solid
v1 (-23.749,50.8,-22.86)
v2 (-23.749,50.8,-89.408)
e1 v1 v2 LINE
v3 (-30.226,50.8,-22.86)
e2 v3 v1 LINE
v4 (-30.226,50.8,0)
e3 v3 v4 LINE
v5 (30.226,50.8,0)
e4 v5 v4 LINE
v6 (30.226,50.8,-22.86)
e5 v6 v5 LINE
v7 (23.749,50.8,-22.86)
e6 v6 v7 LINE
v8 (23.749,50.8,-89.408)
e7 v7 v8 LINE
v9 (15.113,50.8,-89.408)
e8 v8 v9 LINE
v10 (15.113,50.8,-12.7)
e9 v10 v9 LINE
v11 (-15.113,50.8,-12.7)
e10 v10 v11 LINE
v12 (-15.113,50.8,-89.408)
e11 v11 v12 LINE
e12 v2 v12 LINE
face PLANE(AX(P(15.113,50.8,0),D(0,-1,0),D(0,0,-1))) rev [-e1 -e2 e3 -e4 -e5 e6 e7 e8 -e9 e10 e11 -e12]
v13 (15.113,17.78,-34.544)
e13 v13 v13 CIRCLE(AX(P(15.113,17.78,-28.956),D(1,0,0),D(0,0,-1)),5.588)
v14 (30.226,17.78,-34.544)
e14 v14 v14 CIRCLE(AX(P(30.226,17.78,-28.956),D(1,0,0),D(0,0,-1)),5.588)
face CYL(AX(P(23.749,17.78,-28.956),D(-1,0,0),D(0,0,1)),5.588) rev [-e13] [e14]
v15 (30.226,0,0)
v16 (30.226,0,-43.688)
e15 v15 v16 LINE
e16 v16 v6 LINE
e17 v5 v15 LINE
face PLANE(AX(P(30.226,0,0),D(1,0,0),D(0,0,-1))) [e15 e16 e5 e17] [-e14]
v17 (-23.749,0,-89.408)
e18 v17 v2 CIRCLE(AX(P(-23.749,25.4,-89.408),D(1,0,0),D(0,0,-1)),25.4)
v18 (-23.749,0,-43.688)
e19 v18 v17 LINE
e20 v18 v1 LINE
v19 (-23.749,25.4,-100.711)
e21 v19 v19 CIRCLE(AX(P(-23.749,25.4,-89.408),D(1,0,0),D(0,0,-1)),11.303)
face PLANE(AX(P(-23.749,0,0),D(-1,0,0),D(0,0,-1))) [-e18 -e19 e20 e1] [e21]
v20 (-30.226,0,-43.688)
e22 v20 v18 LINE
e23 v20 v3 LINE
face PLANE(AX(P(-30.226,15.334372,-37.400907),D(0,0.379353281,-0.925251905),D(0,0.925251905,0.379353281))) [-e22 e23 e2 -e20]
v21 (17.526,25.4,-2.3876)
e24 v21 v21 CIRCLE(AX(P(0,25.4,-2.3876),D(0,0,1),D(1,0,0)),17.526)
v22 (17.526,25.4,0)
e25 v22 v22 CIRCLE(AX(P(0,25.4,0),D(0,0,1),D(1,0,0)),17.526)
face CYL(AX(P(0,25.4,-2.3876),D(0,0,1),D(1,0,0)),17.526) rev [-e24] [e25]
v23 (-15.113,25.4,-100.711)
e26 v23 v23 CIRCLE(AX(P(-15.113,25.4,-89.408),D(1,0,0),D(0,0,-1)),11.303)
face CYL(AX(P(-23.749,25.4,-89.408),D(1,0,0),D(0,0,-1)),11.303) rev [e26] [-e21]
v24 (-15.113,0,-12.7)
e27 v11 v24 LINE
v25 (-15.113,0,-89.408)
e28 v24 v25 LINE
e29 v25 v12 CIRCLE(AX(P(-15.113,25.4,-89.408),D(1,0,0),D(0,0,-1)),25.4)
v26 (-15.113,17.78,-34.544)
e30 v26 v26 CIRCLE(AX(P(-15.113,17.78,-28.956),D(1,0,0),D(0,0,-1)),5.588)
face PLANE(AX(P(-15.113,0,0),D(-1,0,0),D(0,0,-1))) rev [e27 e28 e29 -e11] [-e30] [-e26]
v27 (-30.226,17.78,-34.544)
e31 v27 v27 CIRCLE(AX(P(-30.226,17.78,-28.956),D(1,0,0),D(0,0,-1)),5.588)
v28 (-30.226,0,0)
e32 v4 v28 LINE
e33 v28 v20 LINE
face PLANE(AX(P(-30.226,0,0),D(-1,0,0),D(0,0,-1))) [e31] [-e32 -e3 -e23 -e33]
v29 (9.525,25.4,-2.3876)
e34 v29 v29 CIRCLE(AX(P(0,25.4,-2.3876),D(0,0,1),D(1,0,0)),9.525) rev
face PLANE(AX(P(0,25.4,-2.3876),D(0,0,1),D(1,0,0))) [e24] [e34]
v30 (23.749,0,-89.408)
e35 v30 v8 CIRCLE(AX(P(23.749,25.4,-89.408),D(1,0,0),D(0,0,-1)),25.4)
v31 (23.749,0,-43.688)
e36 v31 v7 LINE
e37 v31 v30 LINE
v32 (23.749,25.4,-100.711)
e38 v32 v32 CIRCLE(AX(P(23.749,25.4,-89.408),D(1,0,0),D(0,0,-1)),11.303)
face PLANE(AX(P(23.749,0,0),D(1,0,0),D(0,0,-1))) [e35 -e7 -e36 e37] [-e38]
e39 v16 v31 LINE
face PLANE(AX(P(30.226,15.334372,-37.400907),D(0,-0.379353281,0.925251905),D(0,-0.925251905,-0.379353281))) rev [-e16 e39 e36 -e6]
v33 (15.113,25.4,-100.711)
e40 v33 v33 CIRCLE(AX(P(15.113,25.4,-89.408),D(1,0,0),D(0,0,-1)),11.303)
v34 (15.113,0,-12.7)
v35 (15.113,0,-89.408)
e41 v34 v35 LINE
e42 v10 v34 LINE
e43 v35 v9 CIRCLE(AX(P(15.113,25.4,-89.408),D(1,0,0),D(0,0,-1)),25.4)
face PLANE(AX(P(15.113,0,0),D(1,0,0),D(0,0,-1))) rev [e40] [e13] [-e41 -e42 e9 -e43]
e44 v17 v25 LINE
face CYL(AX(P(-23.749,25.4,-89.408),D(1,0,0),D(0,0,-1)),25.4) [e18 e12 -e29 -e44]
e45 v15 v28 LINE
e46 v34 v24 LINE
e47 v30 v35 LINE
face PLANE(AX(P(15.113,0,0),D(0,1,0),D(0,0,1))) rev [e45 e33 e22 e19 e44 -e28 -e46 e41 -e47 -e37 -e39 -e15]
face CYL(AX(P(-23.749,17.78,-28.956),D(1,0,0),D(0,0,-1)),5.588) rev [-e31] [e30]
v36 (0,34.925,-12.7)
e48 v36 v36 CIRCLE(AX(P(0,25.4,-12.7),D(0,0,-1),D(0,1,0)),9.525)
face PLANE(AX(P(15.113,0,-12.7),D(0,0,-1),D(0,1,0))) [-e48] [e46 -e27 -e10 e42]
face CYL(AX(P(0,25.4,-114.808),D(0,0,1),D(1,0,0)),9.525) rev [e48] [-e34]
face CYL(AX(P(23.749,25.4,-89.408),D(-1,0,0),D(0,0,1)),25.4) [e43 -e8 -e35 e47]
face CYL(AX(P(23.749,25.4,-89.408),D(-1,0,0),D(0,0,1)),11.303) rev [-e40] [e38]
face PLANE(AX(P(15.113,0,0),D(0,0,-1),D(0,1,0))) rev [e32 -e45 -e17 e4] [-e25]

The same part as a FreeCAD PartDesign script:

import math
import FreeCAD as App
import Part
import Sketcher
from FreeCAD import Vector
Q = App.Units.Quantity

doc = App.newDocument("Part")
body = doc.addObject("PartDesign::Body", "Body")

# Sketch on YZ plane
sketch1 = body.newObject("Sketcher::SketchObject", "Sketch")
sketch1.AttachmentSupport = (doc.getObject("YZ_Plane"), [""])
sketch1.MapMode = "FlatFace"
sketch1.addGeometry([
    Part.LineSegment(Vector(51, 0, 0), Vector(0, 0, 0)),
    Part.LineSegment(Vector(0, 0, 0), Vector(0, -13, 0)),
    Part.LineSegment(Vector(0, -13, 0), Vector(51, -13, 0)),
    Part.LineSegment(Vector(51, -13, 0), Vector(51, 0, 0)),
], False)
sketch1.addConstraint([
    Sketcher.Constraint("Coincident", 0, 2, 1, 1),
    Sketcher.Constraint("Coincident", 1, 2, 2, 1),
    Sketcher.Constraint("Coincident", 2, 2, 3, 1),
    Sketcher.Constraint("Coincident", 3, 2, 0, 1),
    Sketcher.Constraint("Horizontal", 0),
    Sketcher.Constraint("Vertical", 1),
    Sketcher.Constraint("Horizontal", 2),
    Sketcher.Constraint("Vertical", 3),
    Sketcher.Constraint("Coincident", 0, 2, -1, 1),
    Sketcher.Constraint("DistanceX", 0, 2, 0, 1, Q("2 in")),
    Sketcher.Constraint("DistanceY", 1, 2, 1, 1, Q("0.5 in")),
])
pad1 = body.newObject("PartDesign::Pad", "Pad")
pad1.Profile = sketch1
pad1.Length = Q("0.595 in")

# Sketch on YZ plane
sketch2 = body.newObject("Sketcher::SketchObject", "Sketch001")
sketch2.AttachmentSupport = (doc.getObject("YZ_Plane"), [""])
sketch2.MapMode = "FlatFace"
sketch2.AttachmentOffset = App.Placement(Vector(0, 0, 0.595 * 25.4), App.Rotation())
sketch2.addGeometry([
    Part.LineSegment(Vector(51, -89, 0), Vector(51, 0, 0)),  # 0
    Part.LineSegment(Vector(51, 0, 0), Vector(0, 0, 0)),  # 1
    Part.LineSegment(Vector(0, 0, 0), Vector(0, -89, 0)),  # 2
    Part.ArcOfCircle(Part.Circle(Vector(25, -89, 0), Vector(0, 0, 1), 25), math.radians(180), math.radians(360)),  # 3
    Part.Circle(Vector(18, -29, 0), Vector(0, 0, 1), 6),  # 4
    Part.Circle(Vector(25, -89, 0), Vector(0, 0, 1), 11),  # 5
], False)
sketch2.addConstraint([
    Sketcher.Constraint("Coincident", 0, 2, 1, 1),
    Sketcher.Constraint("Coincident", 1, 2, 2, 1),
    Sketcher.Constraint("Tangent", 2, 2, 3, 1),
    Sketcher.Constraint("Tangent", 3, 2, 0, 1),
    Sketcher.Constraint("Vertical", 0),
    Sketcher.Constraint("Horizontal", 1),
    Sketcher.Constraint("Vertical", 2),
    Sketcher.Constraint("Coincident", 1, 2, -1, 1),
    Sketcher.Constraint("Coincident", 5, 3, 3, 3),
    Sketcher.Constraint("Radius", 3, Q("1 in")),
    Sketcher.Constraint("Diameter", 4, Q("0.44 in")),
    Sketcher.Constraint("Diameter", 5, Q("0.89 in")),
    Sketcher.Constraint("DistanceY", 0, 1, 0, 2, Q("3.52 in")),
    Sketcher.Constraint("DistanceX", -1, 1, 4, 3, Q("0.7 in")),
    Sketcher.Constraint("DistanceY", 4, 3, -1, 1, Q("1.14 in")),
])
pad2 = body.newObject("PartDesign::Pad", "Pad001")
pad2.Profile = sketch2
pad2.Length = Q("0.34 in")

# Sketch on YZ plane
sketch3 = body.newObject("Sketcher::SketchObject", "Sketch002")
sketch3.AttachmentSupport = (doc.getObject("YZ_Plane"), [""])
sketch3.MapMode = "FlatFace"
sketch3.AttachmentOffset = App.Placement(Vector(0, 0, 0.935 * 25.4), App.Rotation())
sketch3.addGeometry([
    Part.LineSegment(Vector(51, -23, 0), Vector(51, 0, 0)),  # 0
    Part.LineSegment(Vector(51, 0, 0), Vector(0, 0, 0)),  # 1
    Part.LineSegment(Vector(0, 0, 0), Vector(0, -44, 0)),  # 2
    Part.LineSegment(Vector(0, -44, 0), Vector(51, -23, 0)),  # 3
    Part.Circle(Vector(18, -29, 0), Vector(0, 0, 1), 6),  # 4
], False)
sketch3.addConstraint([
    Sketcher.Constraint("Coincident", 0, 2, 1, 1),
    Sketcher.Constraint("Coincident", 1, 2, 2, 1),
    Sketcher.Constraint("Coincident", 2, 2, 3, 1),
    Sketcher.Constraint("Coincident", 3, 2, 0, 1),
    Sketcher.Constraint("Vertical", 0),
    Sketcher.Constraint("Horizontal", 1),
    Sketcher.Constraint("Vertical", 2),
    Sketcher.Constraint("Coincident", 1, 2, -1, 1),
    Sketcher.Constraint("Diameter", 4, Q("0.44 in")),
    Sketcher.Constraint("DistanceX", 1, 2, 1, 1, Q("2 in")),
    Sketcher.Constraint("DistanceY", 0, 1, 0, 2, Q("0.9 in")),
    Sketcher.Constraint("DistanceY", 2, 2, 2, 1, Q("1.72 in")),
    Sketcher.Constraint("DistanceX", -1, 1, 4, 3, Q("0.7 in")),
    Sketcher.Constraint("DistanceY", 4, 3, -1, 1, Q("1.14 in")),
])
pad3 = body.newObject("PartDesign::Pad", "Pad002")
pad3.Profile = sketch3
pad3.Length = Q("0.255 in")
doc.recompute()

mirrored = body.newObject("PartDesign::Mirrored", "Mirrored")
mirrored.Originals = [pad1, pad2, pad3]
mirrored.MirrorPlane = (doc.getObject("YZ_Plane"), [""])
body.Tip = mirrored

# Sketch on XY plane
sketch4 = body.newObject("Sketcher::SketchObject", "Sketch003")
sketch4.AttachmentSupport = (doc.getObject("XY_Plane"), [""])
sketch4.MapMode = "FlatFace"
sketch4.addGeometry(Part.Circle(Vector(0, 25, 0), Vector(0, 0, 1), 10), False)
sketch4.addConstraint([
    Sketcher.Constraint("PointOnObject", 0, 3, -2),
    Sketcher.Constraint("Diameter", 0, Q("0.75 in")),
    Sketcher.Constraint("DistanceY", -1, 1, 0, 3, Q("1 in")),
])
pocket1 = body.newObject("PartDesign::Pocket", "Pocket")
pocket1.Profile = sketch4
pocket1.Type = "ThroughAll"

# Sketch on XY plane
sketch5 = body.newObject("Sketcher::SketchObject", "Sketch004")
sketch5.AttachmentSupport = (doc.getObject("XY_Plane"), [""])
sketch5.MapMode = "FlatFace"
sketch5.addGeometry(Part.Circle(Vector(0, 25, 0), Vector(0, 0, 1), 18), False)
sketch5.addConstraint([
    Sketcher.Constraint("PointOnObject", 0, 3, -2),
    Sketcher.Constraint("Diameter", 0, Q("1.38 in")),
    Sketcher.Constraint("DistanceY", -1, 1, 0, 3, Q("1 in")),
])
pocket2 = body.newObject("PartDesign::Pocket", "Pocket001")
pocket2.Profile = sketch5
pocket2.Length = Q("0.094 in")

doc.recompute()
